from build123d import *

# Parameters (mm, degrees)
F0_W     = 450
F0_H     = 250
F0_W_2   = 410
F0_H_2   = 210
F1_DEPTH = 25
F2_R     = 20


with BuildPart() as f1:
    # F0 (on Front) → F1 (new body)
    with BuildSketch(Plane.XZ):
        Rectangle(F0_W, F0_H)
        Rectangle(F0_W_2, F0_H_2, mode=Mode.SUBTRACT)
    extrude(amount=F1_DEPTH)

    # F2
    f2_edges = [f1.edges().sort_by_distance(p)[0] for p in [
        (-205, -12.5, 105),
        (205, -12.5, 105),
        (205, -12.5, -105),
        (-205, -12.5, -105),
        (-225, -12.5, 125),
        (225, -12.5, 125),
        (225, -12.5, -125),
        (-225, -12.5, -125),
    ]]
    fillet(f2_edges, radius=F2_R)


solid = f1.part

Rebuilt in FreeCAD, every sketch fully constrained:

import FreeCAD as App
import Part
import Sketcher

V = App.Vector
Q = App.Units.Quantity


def edges_at(feature, points):
    """Names of the edges that pass closest to the given points."""
    edges = feature.Shape.Edges
    near = lambda p: min(range(len(edges)), key=lambda i: edges[i].distToShape(Part.Vertex(*p))[0])
    return sorted({f"Edge{near(p) + 1}" for p in points})

doc = App.newDocument("Part")
body = doc.addObject("PartDesign::Body", "Body")

# Sketch on XZ plane
sketch1 = doc.addObject("Sketcher::SketchObject", "Sketch")
body.addObject(sketch1)
sketch1.AttachmentSupport = (doc.XZ_Plane, [""])
sketch1.MapMode = "FlatFace"
sketch1.addGeometry(Part.LineSegment(V(-225, 125, 0), V(-225, -125, 0)), False)
sketch1.addGeometry(Part.LineSegment(V(-225, -125, 0), V(225, -125, 0)), False)
sketch1.addGeometry(Part.LineSegment(V(225, -125, 0), V(225, 125, 0)), False)
sketch1.addGeometry(Part.LineSegment(V(225, 125, 0), V(-225, 125, 0)), False)
sketch1.addGeometry(Part.LineSegment(V(205, -105, 0), V(-205, -105, 0)), False)
sketch1.addGeometry(Part.LineSegment(V(-205, -105, 0), V(-205, 105, 0)), False)
sketch1.addGeometry(Part.LineSegment(V(-205, 105, 0), V(205, 105, 0)), False)
sketch1.addGeometry(Part.LineSegment(V(205, 105, 0), V(205, -105, 0)), False)
sketch1.addConstraint(Sketcher.Constraint("Coincident", 0, 2, 1, 1))
sketch1.addConstraint(Sketcher.Constraint("Coincident", 1, 2, 2, 1))
sketch1.addConstraint(Sketcher.Constraint("Coincident", 2, 2, 3, 1))
sketch1.addConstraint(Sketcher.Constraint("Coincident", 3, 2, 0, 1))
sketch1.addConstraint(Sketcher.Constraint("Coincident", 4, 2, 5, 1))
sketch1.addConstraint(Sketcher.Constraint("Coincident", 5, 2, 6, 1))
sketch1.addConstraint(Sketcher.Constraint("Coincident", 6, 2, 7, 1))
sketch1.addConstraint(Sketcher.Constraint("Coincident", 7, 2, 4, 1))
sketch1.addConstraint(Sketcher.Constraint("Vertical", 0))
sketch1.addConstraint(Sketcher.Constraint("Horizontal", 1))
sketch1.addConstraint(Sketcher.Constraint("Vertical", 2))
sketch1.addConstraint(Sketcher.Constraint("Horizontal", 3))
sketch1.addConstraint(Sketcher.Constraint("Horizontal", 4))
sketch1.addConstraint(Sketcher.Constraint("Vertical", 5))
sketch1.addConstraint(Sketcher.Constraint("Horizontal", 6))
sketch1.addConstraint(Sketcher.Constraint("Vertical", 7))
sketch1.addConstraint(Sketcher.Constraint("Symmetric", 0, 2, 2, 2, -1, 1))
sketch1.addConstraint(Sketcher.Constraint("Symmetric", 4, 2, 6, 2, -1, 1))
sketch1.addConstraint(Sketcher.Constraint("DistanceX", 1, 1, 1, 2, Q("450 mm")))
sketch1.addConstraint(Sketcher.Constraint("DistanceX", 4, 2, 4, 1, Q("410 mm")))
sketch1.addConstraint(Sketcher.Constraint("DistanceY", 0, 2, 0, 1, Q("250 mm")))
sketch1.addConstraint(Sketcher.Constraint("DistanceY", 5, 1, 5, 2, Q("210 mm")))
pad1 = doc.addObject("PartDesign::Pad", "Pad")
body.addObject(pad1)
pad1.Profile = sketch1
pad1.Length = 25
doc.recompute()

fillet = doc.addObject("PartDesign::Fillet", "Fillet")
body.addObject(fillet)
fillet.Base = (pad1, edges_at(pad1, [
    (-205, -12.5, 105),
    (205, -12.5, 105),
    (205, -12.5, -105),
    (-205, -12.5, -105),
    (-225, -12.5, 125),
    (225, -12.5, 125),
    (225, -12.5, -125),
    (-225, -12.5, -125),
]))
fillet.Radius = 20

doc.recompute()
